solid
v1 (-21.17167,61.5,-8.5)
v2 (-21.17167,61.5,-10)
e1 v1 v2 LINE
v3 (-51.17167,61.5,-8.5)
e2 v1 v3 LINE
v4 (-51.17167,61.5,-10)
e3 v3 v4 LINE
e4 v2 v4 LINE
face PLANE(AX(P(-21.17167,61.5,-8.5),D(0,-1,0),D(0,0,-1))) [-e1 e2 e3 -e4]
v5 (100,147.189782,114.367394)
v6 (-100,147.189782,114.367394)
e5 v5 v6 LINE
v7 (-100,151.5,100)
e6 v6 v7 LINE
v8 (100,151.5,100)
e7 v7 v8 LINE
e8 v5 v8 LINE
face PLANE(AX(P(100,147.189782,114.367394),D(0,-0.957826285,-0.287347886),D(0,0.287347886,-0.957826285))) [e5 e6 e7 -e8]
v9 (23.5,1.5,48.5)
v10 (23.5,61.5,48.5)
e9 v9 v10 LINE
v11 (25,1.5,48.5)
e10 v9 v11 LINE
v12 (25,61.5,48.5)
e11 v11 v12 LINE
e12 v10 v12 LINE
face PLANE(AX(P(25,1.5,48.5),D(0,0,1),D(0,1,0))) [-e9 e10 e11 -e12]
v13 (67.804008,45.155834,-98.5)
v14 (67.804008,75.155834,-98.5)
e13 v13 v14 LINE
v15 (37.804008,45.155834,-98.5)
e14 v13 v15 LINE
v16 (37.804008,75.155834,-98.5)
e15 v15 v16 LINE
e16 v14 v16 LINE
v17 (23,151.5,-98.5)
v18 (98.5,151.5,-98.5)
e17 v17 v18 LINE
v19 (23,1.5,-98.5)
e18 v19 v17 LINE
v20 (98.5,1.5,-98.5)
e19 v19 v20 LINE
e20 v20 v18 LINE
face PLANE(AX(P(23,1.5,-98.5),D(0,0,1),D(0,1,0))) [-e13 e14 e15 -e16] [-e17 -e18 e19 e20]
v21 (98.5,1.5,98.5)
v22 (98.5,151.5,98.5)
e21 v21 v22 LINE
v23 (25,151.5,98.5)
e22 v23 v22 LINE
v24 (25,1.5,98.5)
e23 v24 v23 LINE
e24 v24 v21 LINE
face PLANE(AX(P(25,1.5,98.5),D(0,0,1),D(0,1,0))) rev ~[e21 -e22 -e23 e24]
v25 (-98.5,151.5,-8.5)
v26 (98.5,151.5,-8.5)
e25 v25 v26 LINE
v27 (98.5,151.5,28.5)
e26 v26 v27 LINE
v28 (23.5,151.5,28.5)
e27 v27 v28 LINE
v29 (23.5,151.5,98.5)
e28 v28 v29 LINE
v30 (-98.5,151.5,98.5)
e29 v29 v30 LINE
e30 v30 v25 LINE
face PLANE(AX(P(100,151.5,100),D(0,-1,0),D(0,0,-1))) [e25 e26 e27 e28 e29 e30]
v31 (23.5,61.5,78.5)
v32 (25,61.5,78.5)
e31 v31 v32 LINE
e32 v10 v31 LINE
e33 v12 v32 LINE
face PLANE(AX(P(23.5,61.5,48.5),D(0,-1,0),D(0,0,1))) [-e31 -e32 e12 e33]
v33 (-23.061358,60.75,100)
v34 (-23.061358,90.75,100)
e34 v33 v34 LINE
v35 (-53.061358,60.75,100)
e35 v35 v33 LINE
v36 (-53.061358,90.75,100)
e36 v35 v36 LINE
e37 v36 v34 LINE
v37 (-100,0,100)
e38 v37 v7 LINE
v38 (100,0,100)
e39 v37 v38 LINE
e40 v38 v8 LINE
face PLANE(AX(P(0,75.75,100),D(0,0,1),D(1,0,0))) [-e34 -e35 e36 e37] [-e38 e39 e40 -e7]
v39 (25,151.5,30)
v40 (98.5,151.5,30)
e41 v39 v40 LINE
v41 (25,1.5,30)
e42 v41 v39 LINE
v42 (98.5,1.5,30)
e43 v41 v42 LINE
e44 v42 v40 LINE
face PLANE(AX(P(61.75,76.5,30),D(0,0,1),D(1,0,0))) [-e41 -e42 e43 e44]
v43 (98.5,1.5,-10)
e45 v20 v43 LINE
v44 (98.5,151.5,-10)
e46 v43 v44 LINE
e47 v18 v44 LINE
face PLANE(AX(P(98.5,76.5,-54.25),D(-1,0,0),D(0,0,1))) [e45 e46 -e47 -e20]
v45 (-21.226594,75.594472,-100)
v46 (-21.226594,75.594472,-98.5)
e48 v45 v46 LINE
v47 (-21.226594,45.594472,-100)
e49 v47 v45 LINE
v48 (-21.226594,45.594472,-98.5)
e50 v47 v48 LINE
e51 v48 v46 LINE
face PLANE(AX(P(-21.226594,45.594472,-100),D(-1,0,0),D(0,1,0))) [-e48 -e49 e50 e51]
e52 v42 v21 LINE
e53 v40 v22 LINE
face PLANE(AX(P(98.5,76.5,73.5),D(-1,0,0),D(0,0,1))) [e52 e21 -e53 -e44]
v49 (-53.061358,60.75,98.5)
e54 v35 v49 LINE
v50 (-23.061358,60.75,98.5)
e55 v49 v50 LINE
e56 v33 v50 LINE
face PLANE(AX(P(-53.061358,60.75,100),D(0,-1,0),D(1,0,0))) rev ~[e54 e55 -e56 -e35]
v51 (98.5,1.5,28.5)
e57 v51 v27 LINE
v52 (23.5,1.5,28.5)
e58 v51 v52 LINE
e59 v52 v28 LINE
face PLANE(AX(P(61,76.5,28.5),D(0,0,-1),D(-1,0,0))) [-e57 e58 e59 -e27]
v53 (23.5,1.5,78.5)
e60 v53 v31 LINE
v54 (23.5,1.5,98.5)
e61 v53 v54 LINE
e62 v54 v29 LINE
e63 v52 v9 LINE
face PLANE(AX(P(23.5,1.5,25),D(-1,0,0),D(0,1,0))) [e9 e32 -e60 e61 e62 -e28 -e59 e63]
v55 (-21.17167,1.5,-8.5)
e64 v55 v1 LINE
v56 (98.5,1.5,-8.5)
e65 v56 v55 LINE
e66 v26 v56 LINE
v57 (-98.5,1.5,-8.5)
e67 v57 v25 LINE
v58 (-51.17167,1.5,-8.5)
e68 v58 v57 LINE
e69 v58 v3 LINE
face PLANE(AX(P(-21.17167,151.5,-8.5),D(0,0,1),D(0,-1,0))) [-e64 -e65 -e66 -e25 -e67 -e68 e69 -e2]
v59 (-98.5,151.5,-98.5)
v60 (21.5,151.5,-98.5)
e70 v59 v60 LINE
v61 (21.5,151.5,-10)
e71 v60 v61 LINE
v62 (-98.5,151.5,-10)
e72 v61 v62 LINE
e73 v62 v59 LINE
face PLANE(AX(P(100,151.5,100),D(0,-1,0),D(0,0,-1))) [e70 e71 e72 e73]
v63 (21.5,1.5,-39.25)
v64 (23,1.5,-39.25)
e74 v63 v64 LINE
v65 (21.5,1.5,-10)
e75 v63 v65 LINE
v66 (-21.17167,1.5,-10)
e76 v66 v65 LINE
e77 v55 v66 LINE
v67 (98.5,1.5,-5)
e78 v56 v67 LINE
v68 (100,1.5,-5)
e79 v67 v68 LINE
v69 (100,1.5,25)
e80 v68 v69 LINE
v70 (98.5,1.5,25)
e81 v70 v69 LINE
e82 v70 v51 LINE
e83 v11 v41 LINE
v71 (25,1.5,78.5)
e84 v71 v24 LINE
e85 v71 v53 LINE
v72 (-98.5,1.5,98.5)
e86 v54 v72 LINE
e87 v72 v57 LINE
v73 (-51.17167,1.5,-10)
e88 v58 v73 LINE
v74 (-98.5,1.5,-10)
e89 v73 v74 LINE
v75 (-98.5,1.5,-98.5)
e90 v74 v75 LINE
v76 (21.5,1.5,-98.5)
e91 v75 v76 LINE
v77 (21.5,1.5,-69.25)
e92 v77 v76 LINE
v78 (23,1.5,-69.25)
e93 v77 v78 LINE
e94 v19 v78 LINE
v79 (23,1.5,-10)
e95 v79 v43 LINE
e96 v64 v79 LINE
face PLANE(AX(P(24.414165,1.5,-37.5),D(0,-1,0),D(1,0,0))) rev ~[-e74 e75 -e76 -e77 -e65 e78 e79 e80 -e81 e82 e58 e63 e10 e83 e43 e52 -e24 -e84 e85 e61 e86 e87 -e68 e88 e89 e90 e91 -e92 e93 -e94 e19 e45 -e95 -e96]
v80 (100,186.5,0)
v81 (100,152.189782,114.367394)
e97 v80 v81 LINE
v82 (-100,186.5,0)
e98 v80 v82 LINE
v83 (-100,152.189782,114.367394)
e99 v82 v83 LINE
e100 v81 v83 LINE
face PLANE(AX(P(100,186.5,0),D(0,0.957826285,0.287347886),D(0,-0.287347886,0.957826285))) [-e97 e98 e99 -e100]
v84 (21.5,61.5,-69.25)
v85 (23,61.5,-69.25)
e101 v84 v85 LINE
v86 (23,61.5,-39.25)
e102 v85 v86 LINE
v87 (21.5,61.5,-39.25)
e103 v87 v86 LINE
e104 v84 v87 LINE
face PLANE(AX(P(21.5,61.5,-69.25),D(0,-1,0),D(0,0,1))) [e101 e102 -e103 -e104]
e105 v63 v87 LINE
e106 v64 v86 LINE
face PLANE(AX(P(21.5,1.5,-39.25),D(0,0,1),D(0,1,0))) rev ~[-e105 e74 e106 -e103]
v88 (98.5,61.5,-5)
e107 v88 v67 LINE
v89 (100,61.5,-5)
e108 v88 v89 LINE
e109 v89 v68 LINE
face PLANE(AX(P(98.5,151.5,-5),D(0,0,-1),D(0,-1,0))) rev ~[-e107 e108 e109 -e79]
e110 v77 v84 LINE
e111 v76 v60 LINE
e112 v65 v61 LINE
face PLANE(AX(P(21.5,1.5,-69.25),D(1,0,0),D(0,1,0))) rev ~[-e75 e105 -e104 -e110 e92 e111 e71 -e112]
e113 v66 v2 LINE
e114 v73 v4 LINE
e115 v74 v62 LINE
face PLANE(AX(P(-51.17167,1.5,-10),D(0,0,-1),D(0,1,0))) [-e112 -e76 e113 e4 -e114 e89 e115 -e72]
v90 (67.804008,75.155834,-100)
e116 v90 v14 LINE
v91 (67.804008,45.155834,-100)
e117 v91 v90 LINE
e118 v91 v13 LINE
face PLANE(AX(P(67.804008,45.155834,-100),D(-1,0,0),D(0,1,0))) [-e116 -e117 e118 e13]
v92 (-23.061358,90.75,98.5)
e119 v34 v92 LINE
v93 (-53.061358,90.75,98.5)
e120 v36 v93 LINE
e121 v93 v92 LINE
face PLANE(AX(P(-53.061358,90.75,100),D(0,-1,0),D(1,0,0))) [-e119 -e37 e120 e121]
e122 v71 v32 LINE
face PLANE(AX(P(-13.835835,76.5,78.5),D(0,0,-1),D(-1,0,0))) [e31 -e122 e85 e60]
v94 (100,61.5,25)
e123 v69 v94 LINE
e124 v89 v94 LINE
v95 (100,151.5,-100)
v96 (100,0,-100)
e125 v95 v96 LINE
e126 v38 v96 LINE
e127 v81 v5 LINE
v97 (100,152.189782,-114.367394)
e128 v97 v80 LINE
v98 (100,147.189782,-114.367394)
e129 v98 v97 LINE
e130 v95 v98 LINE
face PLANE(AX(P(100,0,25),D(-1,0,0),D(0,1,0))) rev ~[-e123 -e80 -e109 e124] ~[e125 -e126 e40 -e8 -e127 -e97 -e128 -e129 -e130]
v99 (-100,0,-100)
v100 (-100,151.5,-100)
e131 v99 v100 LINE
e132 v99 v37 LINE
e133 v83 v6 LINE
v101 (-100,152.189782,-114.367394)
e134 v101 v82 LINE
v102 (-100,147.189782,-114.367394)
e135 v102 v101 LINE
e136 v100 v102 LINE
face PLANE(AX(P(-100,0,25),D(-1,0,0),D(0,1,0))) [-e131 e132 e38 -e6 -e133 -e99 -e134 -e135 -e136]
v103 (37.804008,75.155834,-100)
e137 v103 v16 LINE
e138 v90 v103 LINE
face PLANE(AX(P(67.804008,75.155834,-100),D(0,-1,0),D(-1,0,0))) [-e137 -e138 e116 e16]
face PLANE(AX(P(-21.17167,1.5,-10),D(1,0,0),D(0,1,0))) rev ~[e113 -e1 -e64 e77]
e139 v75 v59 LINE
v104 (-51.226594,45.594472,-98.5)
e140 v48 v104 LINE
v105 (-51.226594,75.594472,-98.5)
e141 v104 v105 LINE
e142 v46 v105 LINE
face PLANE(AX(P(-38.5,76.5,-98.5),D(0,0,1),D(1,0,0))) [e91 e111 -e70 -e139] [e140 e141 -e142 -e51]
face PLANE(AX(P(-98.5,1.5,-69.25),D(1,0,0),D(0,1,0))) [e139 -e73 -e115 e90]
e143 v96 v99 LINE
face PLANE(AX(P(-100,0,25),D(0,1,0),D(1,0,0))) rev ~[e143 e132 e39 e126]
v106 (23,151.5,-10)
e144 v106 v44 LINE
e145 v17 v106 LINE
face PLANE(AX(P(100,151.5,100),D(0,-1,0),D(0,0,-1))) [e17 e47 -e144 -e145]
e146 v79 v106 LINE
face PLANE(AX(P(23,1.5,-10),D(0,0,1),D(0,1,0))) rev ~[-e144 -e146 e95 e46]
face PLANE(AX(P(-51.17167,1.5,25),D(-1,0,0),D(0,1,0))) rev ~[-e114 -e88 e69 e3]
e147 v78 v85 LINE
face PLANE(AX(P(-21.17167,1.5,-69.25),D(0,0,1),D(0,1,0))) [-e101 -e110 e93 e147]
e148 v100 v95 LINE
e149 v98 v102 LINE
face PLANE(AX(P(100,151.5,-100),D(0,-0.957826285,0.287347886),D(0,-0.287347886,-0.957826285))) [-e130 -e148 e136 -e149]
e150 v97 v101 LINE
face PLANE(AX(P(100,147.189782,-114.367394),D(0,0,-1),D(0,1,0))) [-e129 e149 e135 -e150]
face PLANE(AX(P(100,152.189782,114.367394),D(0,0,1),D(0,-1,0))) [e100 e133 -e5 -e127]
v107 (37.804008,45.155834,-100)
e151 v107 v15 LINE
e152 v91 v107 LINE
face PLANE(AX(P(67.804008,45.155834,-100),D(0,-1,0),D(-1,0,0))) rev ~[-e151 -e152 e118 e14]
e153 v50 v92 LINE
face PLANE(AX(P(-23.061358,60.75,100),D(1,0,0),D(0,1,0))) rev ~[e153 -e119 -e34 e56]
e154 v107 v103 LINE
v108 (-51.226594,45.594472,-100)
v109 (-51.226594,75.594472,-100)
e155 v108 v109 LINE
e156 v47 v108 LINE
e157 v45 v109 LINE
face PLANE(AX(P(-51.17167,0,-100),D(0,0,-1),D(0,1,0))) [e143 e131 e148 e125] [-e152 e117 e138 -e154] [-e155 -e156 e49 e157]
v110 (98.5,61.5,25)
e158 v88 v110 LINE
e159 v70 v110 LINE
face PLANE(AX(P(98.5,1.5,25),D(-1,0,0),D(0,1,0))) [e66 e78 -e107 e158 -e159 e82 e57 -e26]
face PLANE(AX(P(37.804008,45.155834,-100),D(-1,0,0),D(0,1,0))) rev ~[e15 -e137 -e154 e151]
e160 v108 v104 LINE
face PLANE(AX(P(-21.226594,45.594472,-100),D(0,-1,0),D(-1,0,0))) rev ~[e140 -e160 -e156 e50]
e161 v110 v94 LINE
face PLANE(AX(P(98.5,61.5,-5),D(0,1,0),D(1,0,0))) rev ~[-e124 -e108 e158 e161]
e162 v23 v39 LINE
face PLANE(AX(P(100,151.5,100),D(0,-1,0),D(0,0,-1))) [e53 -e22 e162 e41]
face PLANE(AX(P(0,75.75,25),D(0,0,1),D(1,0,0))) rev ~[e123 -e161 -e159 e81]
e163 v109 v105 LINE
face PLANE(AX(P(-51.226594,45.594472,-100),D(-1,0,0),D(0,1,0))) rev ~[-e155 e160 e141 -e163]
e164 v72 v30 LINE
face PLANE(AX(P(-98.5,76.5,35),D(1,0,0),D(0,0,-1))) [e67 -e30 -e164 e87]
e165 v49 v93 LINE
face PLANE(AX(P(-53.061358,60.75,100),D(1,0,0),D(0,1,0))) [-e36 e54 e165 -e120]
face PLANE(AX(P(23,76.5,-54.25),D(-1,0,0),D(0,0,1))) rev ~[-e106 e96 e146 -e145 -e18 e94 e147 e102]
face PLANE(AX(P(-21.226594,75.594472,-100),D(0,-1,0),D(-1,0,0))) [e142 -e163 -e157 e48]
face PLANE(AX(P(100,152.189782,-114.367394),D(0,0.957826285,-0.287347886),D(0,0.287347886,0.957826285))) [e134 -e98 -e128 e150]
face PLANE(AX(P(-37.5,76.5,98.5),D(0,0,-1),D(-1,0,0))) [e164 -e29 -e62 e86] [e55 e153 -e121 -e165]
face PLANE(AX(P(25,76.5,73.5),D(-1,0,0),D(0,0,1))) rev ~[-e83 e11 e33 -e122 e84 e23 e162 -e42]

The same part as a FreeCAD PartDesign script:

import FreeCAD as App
import Part
import Sketcher
Q = App.Units.Quantity

doc = App.newDocument("Part")
body = doc.addObject("PartDesign::Body", "Body")

sketch1 = body.newObject("Sketcher::SketchObject", "Sketch")
sketch1.AttachmentSupport = (doc.getObject("YZ_Plane"), [""])
sketch1.MapMode = "FlatFace"
sketch1.AttachmentOffset = App.Placement(App.Vector(0, 0, 98.5), App.Rotation())
sketch1.addGeometry(Part.LineSegment(App.Vector(151.5, -5, 0), App.Vector(151.5, -8.5, 0)), False)
sketch1.addGeometry(Part.LineSegment(App.Vector(151.5, -8.5, 0), App.Vector(1.5, -8.5, 0)), False)
sketch1.addGeometry(Part.LineSegment(App.Vector(1.5, -8.5, 0), App.Vector(1.5, -5, 0)), False)
sketch1.addGeometry(Part.LineSegment(App.Vector(1.5, -5, 0), App.Vector(151.5, -5, 0)), False)
sketch1.addConstraint(Sketcher.Constraint("Coincident", 0, 2, 1, 1))
sketch1.addConstraint(Sketcher.Constraint("Coincident", 1, 2, 2, 1))
sketch1.addConstraint(Sketcher.Constraint("Coincident", 2, 2, 3, 1))
sketch1.addConstraint(Sketcher.Constraint("Coincident", 3, 2, 0, 1))
sketch1.addConstraint(Sketcher.Constraint("Vertical", 0))
sketch1.addConstraint(Sketcher.Constraint("Horizontal", 1))
sketch1.addConstraint(Sketcher.Constraint("Vertical", 2))
sketch1.addConstraint(Sketcher.Constraint("Horizontal", 3))
sketch1.addConstraint(Sketcher.Constraint("DistanceX", 1, 2, 1, 1, Q("150 mm")))
sketch1.addConstraint(Sketcher.Constraint("DistanceY", 0, 2, 0, 1, Q("3.5 mm")))
sketch1.addConstraint(Sketcher.Constraint("DistanceY", 2, 2, -1, 1, Q("5 mm")))
sketch1.addConstraint(Sketcher.Constraint("DistanceX", -1, 1, 0, 2, Q("151.5 mm")))
pad1 = body.newObject("PartDesign::Pad", "Pad")
pad1.Profile = sketch1
pad1.Length = 1.5

sketch2 = body.newObject("Sketcher::SketchObject", "Sketch001")
sketch2.AttachmentSupport = (doc.getObject("XY_Plane"), [""])
sketch2.MapMode = "FlatFace"
sketch2.AttachmentOffset = App.Placement(App.Vector(0, 0, -8.5), App.Rotation())
sketch2.addGeometry(Part.LineSegment(App.Vector(100, 152, 0), App.Vector(100, 2, 0)), False)
sketch2.addGeometry(Part.LineSegment(App.Vector(100, 2, 0), App.Vector(-21, 2, 0)), False)
sketch2.addGeometry(Part.LineSegment(App.Vector(-21, 2, 0), App.Vector(-21, 152, 0)), False)
sketch2.addGeometry(Part.LineSegment(App.Vector(-21, 152, 0), App.Vector(100, 152, 0)), False)
sketch2.addConstraint(Sketcher.Constraint("Coincident", 0, 2, 1, 1))
sketch2.addConstraint(Sketcher.Constraint("Coincident", 1, 2, 2, 1))
sketch2.addConstraint(Sketcher.Constraint("Coincident", 2, 2, 3, 1))
sketch2.addConstraint(Sketcher.Constraint("Coincident", 3, 2, 0, 1))
sketch2.addConstraint(Sketcher.Constraint("Vertical", 0))
sketch2.addConstraint(Sketcher.Constraint("Horizontal", 1))
sketch2.addConstraint(Sketcher.Constraint("Vertical", 2))
sketch2.addConstraint(Sketcher.Constraint("Horizontal", 3))
sketch2.addConstraint(Sketcher.Constraint("DistanceY", 0, 2, 0, 1, Q("150 mm")))
sketch2.addConstraint(Sketcher.Constraint("DistanceX", -1, 1, 0, 2, Q("100 mm")))
sketch2.addConstraint(Sketcher.Constraint("DistanceY", -1, 1, 0, 2, Q("1.5 mm")))
sketch2.addConstraint(Sketcher.Constraint("DistanceX", 1, 2, 1, 1, Q("121.17167 mm")))
pad2 = body.newObject("PartDesign::Pad", "Pad001")
pad2.Profile = sketch2
pad2.Length = 91.5
pad2.Reversed = True

sketch3 = body.newObject("Sketcher::SketchObject", "Sketch002")
sketch3.AttachmentSupport = (doc.getObject("XY_Plane"), [""])
sketch3.MapMode = "FlatFace"
sketch3.AttachmentOffset = App.Placement(App.Vector(0, 0, -5), App.Rotation())
sketch3.addGeometry(Part.LineSegment(App.Vector(98.5, 151.5, 0), App.Vector(98.5, 61.5, 0)), False)
sketch3.addGeometry(Part.LineSegment(App.Vector(98.5, 61.5, 0), App.Vector(100, 61.5, 0)), False)
sketch3.addGeometry(Part.LineSegment(App.Vector(100, 61.5, 0), App.Vector(100, 151.5, 0)), False)
sketch3.addGeometry(Part.LineSegment(App.Vector(100, 151.5, 0), App.Vector(98.5, 151.5, 0)), False)
sketch3.addConstraint(Sketcher.Constraint("Coincident", 0, 2, 1, 1))
sketch3.addConstraint(Sketcher.Constraint("Coincident", 1, 2, 2, 1))
sketch3.addConstraint(Sketcher.Constraint("Coincident", 2, 2, 3, 1))
sketch3.addConstraint(Sketcher.Constraint("Coincident", 3, 2, 0, 1))
sketch3.addConstraint(Sketcher.Constraint("Vertical", 0))
sketch3.addConstraint(Sketcher.Constraint("Horizontal", 1))
sketch3.addConstraint(Sketcher.Constraint("Vertical", 2))
sketch3.addConstraint(Sketcher.Constraint("Horizontal", 3))
sketch3.addConstraint(Sketcher.Constraint("DistanceY", 0, 2, 0, 1, Q("90 mm")))
sketch3.addConstraint(Sketcher.Constraint("DistanceX", 1, 1, 1, 2, Q("1.5 mm")))
sketch3.addConstraint(Sketcher.Constraint("DistanceX", -1, 1, 1, 2, Q("100 mm")))
sketch3.addConstraint(Sketcher.Constraint("DistanceY", -1, 1, 0, 2, Q("61.5 mm")))
pad3 = body.newObject("PartDesign::Pad", "Pad002")
pad3.Profile = sketch3
pad3.Length = 30

sketch4 = body.newObject("Sketcher::SketchObject", "Sketch003")
sketch4.AttachmentSupport = (doc.getObject("YZ_Plane"), [""])
sketch4.MapMode = "FlatFace"
sketch4.AttachmentOffset = App.Placement(App.Vector(0, 0, -21.17167), App.Rotation())
sketch4.addGeometry(Part.LineSegment(App.Vector(151.5, -100, 0), App.Vector(1.5, -100, 0)), False)
sketch4.addGeometry(Part.LineSegment(App.Vector(1.5, -100, 0), App.Vector(1.5, -10, 0)), False)
sketch4.addGeometry(Part.LineSegment(App.Vector(1.5, -10, 0), App.Vector(61.5, -10, 0)), False)
sketch4.addGeometry(Part.LineSegment(App.Vector(61.5, -10, 0), App.Vector(61.5, -8.5, 0)), False)
sketch4.addGeometry(Part.LineSegment(App.Vector(61.5, -8.5, 0), App.Vector(151.5, -8.5, 0)), False)
sketch4.addGeometry(Part.LineSegment(App.Vector(151.5, -8.5, 0), App.Vector(151.5, -100, 0)), False)
sketch4.addConstraint(Sketcher.Constraint("Coincident", 0, 2, 1, 1))
sketch4.addConstraint(Sketcher.Constraint("Coincident", 1, 2, 2, 1))
sketch4.addConstraint(Sketcher.Constraint("Coincident", 2, 2, 3, 1))
sketch4.addConstraint(Sketcher.Constraint("Coincident", 3, 2, 4, 1))
sketch4.addConstraint(Sketcher.Constraint("Coincident", 4, 2, 5, 1))
sketch4.addConstraint(Sketcher.Constraint("Coincident", 5, 2, 0, 1))
sketch4.addConstraint(Sketcher.Constraint("Horizontal", 0))
sketch4.addConstraint(Sketcher.Constraint("Vertical", 1))
sketch4.addConstraint(Sketcher.Constraint("Horizontal", 2))
sketch4.addConstraint(Sketcher.Constraint("Vertical", 3))
sketch4.addConstraint(Sketcher.Constraint("Horizontal", 4))
sketch4.addConstraint(Sketcher.Constraint("Vertical", 5))
sketch4.addConstraint(Sketcher.Constraint("Equal", 4, 1))
sketch4.addConstraint(Sketcher.Constraint("DistanceX", 0, 2, 0, 1, Q("150 mm")))
sketch4.addConstraint(Sketcher.Constraint("DistanceX", 2, 1, 2, 2, Q("60 mm")))
sketch4.addConstraint(Sketcher.Constraint("DistanceY", 3, 1, 3, 2, Q("1.5 mm")))
sketch4.addConstraint(Sketcher.Constraint("DistanceY", 0, 2, -1, 1, Q("100 mm")))
sketch4.addConstraint(Sketcher.Constraint("DistanceX", -1, 1, 0, 2, Q("1.5 mm")))
pad4 = body.newObject("PartDesign::Pad", "Pad003")
pad4.Profile = sketch4
pad4.Length = 30
pad4.Reversed = True

sketch5 = body.newObject("Sketcher::SketchObject", "Sketch004")
sketch5.AttachmentSupport = (doc.getObject("XZ_Plane"), [""])
sketch5.MapMode = "FlatFace"
sketch5.AttachmentOffset = App.Placement(App.Vector(0, 0, -1.5), App.Rotation())
sketch5.addGeometry(Part.LineSegment(App.Vector(-51, 25, 0), App.Vector(-51, -100, 0)), False)
sketch5.addGeometry(Part.LineSegment(App.Vector(-51, -100, 0), App.Vector(100, -100, 0)), False)
sketch5.addGeometry(Part.LineSegment(App.Vector(100, -100, 0), App.Vector(100, 25, 0)), False)
sketch5.addGeometry(Part.LineSegment(App.Vector(100, 25, 0), App.Vector(-51, 25, 0)), False)
sketch5.addConstraint(Sketcher.Constraint("Coincident", 0, 2, 1, 1))
sketch5.addConstraint(Sketcher.Constraint("Coincident", 1, 2, 2, 1))
sketch5.addConstraint(Sketcher.Constraint("Coincident", 2, 2, 3, 1))
sketch5.addConstraint(Sketcher.Constraint("Coincident", 3, 2, 0, 1))
sketch5.addConstraint(Sketcher.Constraint("Vertical", 0))
sketch5.addConstraint(Sketcher.Constraint("Horizontal", 1))
sketch5.addConstraint(Sketcher.Constraint("Vertical", 2))
sketch5.addConstraint(Sketcher.Constraint("Horizontal", 3))
sketch5.addConstraint(Sketcher.Constraint("DistanceY", 0, 2, 0, 1, Q("125 mm")))
sketch5.addConstraint(Sketcher.Constraint("DistanceY", 0, 2, -1, 1, Q("100 mm")))
sketch5.addConstraint(Sketcher.Constraint("DistanceX", -1, 1, 1, 2, Q("100 mm")))
sketch5.addConstraint(Sketcher.Constraint("DistanceX", 1, 1, 1, 2, Q("151.17167 mm")))
pad5 = body.newObject("PartDesign::Pad", "Pad004")
pad5.Profile = sketch5
pad5.Length = 1.5

sketch6 = body.newObject("Sketcher::SketchObject", "Sketch005")
sketch6.AttachmentSupport = (doc.getObject("YZ_Plane"), [""])
sketch6.MapMode = "FlatFace"
sketch6.AttachmentOffset = App.Placement(App.Vector(0, 0, -51.17167), App.Rotation())
sketch6.addGeometry(Part.LineSegment(App.Vector(152, -100, 0), App.Vector(0, -100, 0)), False)
sketch6.addGeometry(Part.LineSegment(App.Vector(0, -100, 0), App.Vector(0, 25, 0)), False)
sketch6.addGeometry(Part.LineSegment(App.Vector(0, 25, 0), App.Vector(152, 25, 0)), False)
sketch6.addGeometry(Part.LineSegment(App.Vector(152, 25, 0), App.Vector(152, -100, 0)), False)
sketch6.addConstraint(Sketcher.Constraint("Coincident", 0, 2, 1, 1))
sketch6.addConstraint(Sketcher.Constraint("Coincident", 1, 2, 2, 1))
sketch6.addConstraint(Sketcher.Constraint("Coincident", 2, 2, 3, 1))
sketch6.addConstraint(Sketcher.Constraint("Coincident", 3, 2, 0, 1))
sketch6.addConstraint(Sketcher.Constraint("Horizontal", 0))
sketch6.addConstraint(Sketcher.Constraint("Vertical", 1))
sketch6.addConstraint(Sketcher.Constraint("Horizontal", 2))
sketch6.addConstraint(Sketcher.Constraint("Vertical", 3))
sketch6.addConstraint(Sketcher.Constraint("PointOnObject", 0, 2, -2))
sketch6.addConstraint(Sketcher.Constraint("DistanceY", 1, 1, 1, 2, Q("125 mm")))
sketch6.addConstraint(Sketcher.Constraint("DistanceX", 0, 2, 0, 1, Q("151.5 mm")))
sketch6.addConstraint(Sketcher.Constraint("DistanceY", 0, 2, -1, 1, Q("100 mm")))
pad6 = body.newObject("PartDesign::Pad", "Pad005")
pad6.Profile = sketch6
pad6.Length = 48.82833
pad6.Reversed = True

sketch7 = body.newObject("Sketcher::SketchObject", "Sketch006")
sketch7.AttachmentSupport = (doc.getObject("XY_Plane"), [""])
sketch7.MapMode = "FlatFace"
sketch7.AttachmentOffset = App.Placement(App.Vector(0, 0, 25), App.Rotation())
sketch7.addGeometry(Part.LineSegment(App.Vector(-100, 152, 0), App.Vector(-100, 0, 0)), False)
sketch7.addGeometry(Part.LineSegment(App.Vector(-100, 0, 0), App.Vector(100, 0, 0)), False)
sketch7.addGeometry(Part.LineSegment(App.Vector(100, 0, 0), App.Vector(100, 152, 0)), False)
sketch7.addGeometry(Part.LineSegment(App.Vector(100, 152, 0), App.Vector(-100, 152, 0)), False)
sketch7.addConstraint(Sketcher.Constraint("Coincident", 0, 2, 1, 1))
sketch7.addConstraint(Sketcher.Constraint("Coincident", 1, 2, 2, 1))
sketch7.addConstraint(Sketcher.Constraint("Coincident", 2, 2, 3, 1))
sketch7.addConstraint(Sketcher.Constraint("Coincident", 3, 2, 0, 1))
sketch7.addConstraint(Sketcher.Constraint("Vertical", 0))
sketch7.addConstraint(Sketcher.Constraint("Horizontal", 1))
sketch7.addConstraint(Sketcher.Constraint("Vertical", 2))
sketch7.addConstraint(Sketcher.Constraint("Horizontal", 3))
sketch7.addConstraint(Sketcher.Constraint("Symmetric", 0, 2, 1, 2, -1, 1))
sketch7.addConstraint(Sketcher.Constraint("DistanceX", 1, 1, 1, 2, Q("200 mm")))
sketch7.addConstraint(Sketcher.Constraint("DistanceY", 0, 2, 0, 1, Q("151.5 mm")))
pad7 = body.newObject("PartDesign::Pad", "Pad006")
pad7.Profile = sketch7
pad7.Length = 75

sketch8 = body.newObject("Sketcher::SketchObject", "Sketch007")
sketch8.AttachmentSupport = (doc.getObject("XY_Plane"), [""])
sketch8.MapMode = "FlatFace"
sketch8.AttachmentOffset = App.Placement(App.Vector(0, 0, 25), App.Rotation())
sketch8.addGeometry(Part.LineSegment(App.Vector(24, 152, 0), App.Vector(24, 2, 0)), False)
sketch8.addGeometry(Part.LineSegment(App.Vector(24, 2, 0), App.Vector(-51, 2, 0)), False)
sketch8.addGeometry(Part.LineSegment(App.Vector(-51, 2, 0), App.Vector(-51, 152, 0)), False)
sketch8.addGeometry(Part.LineSegment(App.Vector(-51, 152, 0), App.Vector(24, 152, 0)), False)
sketch8.addConstraint(Sketcher.Constraint("Coincident", 0, 2, 1, 1))
sketch8.addConstraint(Sketcher.Constraint("Coincident", 1, 2, 2, 1))
sketch8.addConstraint(Sketcher.Constraint("Coincident", 2, 2, 3, 1))
sketch8.addConstraint(Sketcher.Constraint("Coincident", 3, 2, 0, 1))
sketch8.addConstraint(Sketcher.Constraint("Vertical", 0))
sketch8.addConstraint(Sketcher.Constraint("Horizontal", 1))
sketch8.addConstraint(Sketcher.Constraint("Vertical", 2))
sketch8.addConstraint(Sketcher.Constraint("Horizontal", 3))
sketch8.addConstraint(Sketcher.Constraint("DistanceY", 0, 2, 0, 1, Q("150 mm")))
sketch8.addConstraint(Sketcher.Constraint("DistanceX", -1, 1, 0, 2, Q("23.5 mm")))
sketch8.addConstraint(Sketcher.Constraint("DistanceY", -1, 1, 0, 2, Q("1.5 mm")))
sketch8.addConstraint(Sketcher.Constraint("DistanceX", 1, 2, 1, 1, Q("74.67167 mm")))
pocket1 = body.newObject("PartDesign::Pocket", "Pocket")
pocket1.Profile = sketch8
pocket1.Length = 53.5
pocket1.Reversed = True

sketch9 = body.newObject("Sketcher::SketchObject", "Sketch008")
sketch9.AttachmentSupport = (doc.getObject("XY_Plane"), [""])
sketch9.MapMode = "FlatFace"
sketch9.AttachmentOffset = App.Placement(App.Vector(0, 0, -10), App.Rotation())
sketch9.addGeometry(Part.LineSegment(App.Vector(-51, 152, 0), App.Vector(-51, 2, 0)), False)
sketch9.addGeometry(Part.LineSegment(App.Vector(-51, 2, 0), App.Vector(-21, 2, 0)), False)
sketch9.addGeometry(Part.LineSegment(App.Vector(-21, 2, 0), App.Vector(-21, 152, 0)), False)
sketch9.addGeometry(Part.LineSegment(App.Vector(-21, 152, 0), App.Vector(-51, 152, 0)), False)
sketch9.addConstraint(Sketcher.Constraint("Coincident", 0, 2, 1, 1))
sketch9.addConstraint(Sketcher.Constraint("Coincident", 1, 2, 2, 1))
sketch9.addConstraint(Sketcher.Constraint("Coincident", 2, 2, 3, 1))
sketch9.addConstraint(Sketcher.Constraint("Coincident", 3, 2, 0, 1))
sketch9.addConstraint(Sketcher.Constraint("Vertical", 0))
sketch9.addConstraint(Sketcher.Constraint("Horizontal", 1))
sketch9.addConstraint(Sketcher.Constraint("Vertical", 2))
sketch9.addConstraint(Sketcher.Constraint("Horizontal", 3))
sketch9.addConstraint(Sketcher.Constraint("DistanceX", 1, 1, 1, 2, Q("30 mm")))
sketch9.addConstraint(Sketcher.Constraint("DistanceY", 0, 2, 0, 1, Q("150 mm")))
sketch9.addConstraint(Sketcher.Constraint("DistanceY", -1, 1, 0, 2, Q("1.5 mm")))
sketch9.addConstraint(Sketcher.Constraint("DistanceX", 0, 2, -1, 1, Q("51.17167 mm")))
pocket2 = body.newObject("PartDesign::Pocket", "Pocket001")
pocket2.Profile = sketch9
pocket2.Length = 59.25

sketch10 = body.newObject("Sketcher::SketchObject", "Sketch009")
sketch10.AttachmentSupport = (doc.getObject("YZ_Plane"), [""])
sketch10.MapMode = "FlatFace"
sketch10.AttachmentOffset = App.Placement(App.Vector(0, 0, -21.17167), App.Rotation())
sketch10.addGeometry(Part.LineSegment(App.Vector(152, -69, 0), App.Vector(2, -69, 0)), False)
sketch10.addGeometry(Part.LineSegment(App.Vector(2, -69, 0), App.Vector(2, -10, 0)), False)
sketch10.addGeometry(Part.LineSegment(App.Vector(2, -10, 0), App.Vector(152, -10, 0)), False)
sketch10.addGeometry(Part.LineSegment(App.Vector(152, -10, 0), App.Vector(152, -69, 0)), False)
sketch10.addConstraint(Sketcher.Constraint("Coincident", 0, 2, 1, 1))
sketch10.addConstraint(Sketcher.Constraint("Coincident", 1, 2, 2, 1))
sketch10.addConstraint(Sketcher.Constraint("Coincident", 2, 2, 3, 1))
sketch10.addConstraint(Sketcher.Constraint("Coincident", 3, 2, 0, 1))
sketch10.addConstraint(Sketcher.Constraint("Horizontal", 0))
sketch10.addConstraint(Sketcher.Constraint("Vertical", 1))
sketch10.addConstraint(Sketcher.Constraint("Horizontal", 2))
sketch10.addConstraint(Sketcher.Constraint("Vertical", 3))
sketch10.addConstraint(Sketcher.Constraint("DistanceX", 0, 2, 0, 1, Q("150 mm")))
sketch10.addConstraint(Sketcher.Constraint("DistanceY", 1, 2, -1, 1, Q("10 mm")))
sketch10.addConstraint(Sketcher.Constraint("DistanceY", 1, 1, 1, 2, Q("59.25 mm")))
sketch10.addConstraint(Sketcher.Constraint("DistanceX", -1, 1, 0, 2, Q("1.5 mm")))
pocket3 = body.newObject("PartDesign::Pocket", "Pocket002")
pocket3.Profile = sketch10
pocket3.Length = 42.67167
pocket3.Reversed = True

sketch11 = body.newObject("Sketcher::SketchObject", "Sketch010")
sketch11.AttachmentSupport = (doc.getObject("YZ_Plane"), [""])
sketch11.MapMode = "FlatFace"
sketch11.AttachmentOffset = App.Placement(App.Vector(0, 0, 23.5), App.Rotation())
sketch11.addGeometry(Part.LineSegment(App.Vector(62, 48, 0), App.Vector(2, 48, 0)), False)
sketch11.addGeometry(Part.LineSegment(App.Vector(2, 48, 0), App.Vector(2, 78, 0)), False)
sketch11.addGeometry(Part.LineSegment(App.Vector(2, 78, 0), App.Vector(62, 78, 0)), False)
sketch11.addGeometry(Part.LineSegment(App.Vector(62, 78, 0), App.Vector(62, 48, 0)), False)
sketch11.addConstraint(Sketcher.Constraint("Coincident", 0, 2, 1, 1))
sketch11.addConstraint(Sketcher.Constraint("Coincident", 1, 2, 2, 1))
sketch11.addConstraint(Sketcher.Constraint("Coincident", 2, 2, 3, 1))
sketch11.addConstraint(Sketcher.Constraint("Coincident", 3, 2, 0, 1))
sketch11.addConstraint(Sketcher.Constraint("Horizontal", 0))
sketch11.addConstraint(Sketcher.Constraint("Vertical", 1))
sketch11.addConstraint(Sketcher.Constraint("Horizontal", 2))
sketch11.addConstraint(Sketcher.Constraint("Vertical", 3))
sketch11.addConstraint(Sketcher.Constraint("DistanceX", 0, 2, 0, 1, Q("60 mm")))
sketch11.addConstraint(Sketcher.Constraint("DistanceY", 1, 1, 1, 2, Q("30 mm")))
sketch11.addConstraint(Sketcher.Constraint("DistanceX", -1, 1, 0, 2, Q("1.5 mm")))
sketch11.addConstraint(Sketcher.Constraint("DistanceY", -1, 1, 0, 2, Q("48.5 mm")))
pocket4 = body.newObject("PartDesign::Pocket", "Pocket003")
pocket4.Profile = sketch11
pocket4.Length = 1.5
pocket4.Reversed = True

sketch12 = body.newObject("Sketcher::SketchObject", "Sketch011")
sketch12.AttachmentSupport = (doc.getObject("YZ_Plane"), [""])
sketch12.MapMode = "FlatFace"
sketch12.AttachmentOffset = App.Placement(App.Vector(0, 0, 21.5), App.Rotation())
sketch12.addGeometry(Part.LineSegment(App.Vector(62, -69, 0), App.Vector(2, -69, 0)), False)
sketch12.addGeometry(Part.LineSegment(App.Vector(2, -69, 0), App.Vector(2, -39, 0)), False)
sketch12.addGeometry(Part.LineSegment(App.Vector(2, -39, 0), App.Vector(62, -39, 0)), False)
sketch12.addGeometry(Part.LineSegment(App.Vector(62, -39, 0), App.Vector(62, -69, 0)), False)
sketch12.addConstraint(Sketcher.Constraint("Coincident", 0, 2, 1, 1))
sketch12.addConstraint(Sketcher.Constraint("Coincident", 1, 2, 2, 1))
sketch12.addConstraint(Sketcher.Constraint("Coincident", 2, 2, 3, 1))
sketch12.addConstraint(Sketcher.Constraint("Coincident", 3, 2, 0, 1))
sketch12.addConstraint(Sketcher.Constraint("Horizontal", 0))
sketch12.addConstraint(Sketcher.Constraint("Vertical", 1))
sketch12.addConstraint(Sketcher.Constraint("Horizontal", 2))
sketch12.addConstraint(Sketcher.Constraint("Vertical", 3))
sketch12.addConstraint(Sketcher.Constraint("DistanceX", 0, 2, 0, 1, Q("60 mm")))
sketch12.addConstraint(Sketcher.Constraint("DistanceY", 1, 1, 1, 2, Q("30 mm")))
sketch12.addConstraint(Sketcher.Constraint("DistanceX", -1, 1, 0, 2, Q("1.5 mm")))
sketch12.addConstraint(Sketcher.Constraint("DistanceY", 0, 2, -1, 1, Q("69.25 mm")))
pocket5 = body.newObject("PartDesign::Pocket", "Pocket004")
pocket5.Profile = sketch12
pocket5.Length = 1.5
pocket5.Reversed = True

sketch13 = body.newObject("Sketcher::SketchObject", "Sketch012")
sketch13.AttachmentSupport = (doc.getObject("YZ_Plane"), [""])
sketch13.MapMode = "FlatFace"
sketch13.AttachmentOffset = App.Placement(App.Vector(0, 0, -51.17167), App.Rotation())
sketch13.addGeometry(Part.LineSegment(App.Vector(152, 78, 0), App.Vector(2, 78, 0)), False)
sketch13.addGeometry(Part.LineSegment(App.Vector(2, 78, 0), App.Vector(2, -8, 0)), False)
sketch13.addGeometry(Part.LineSegment(App.Vector(2, -8, 0), App.Vector(152, -8, 0)), False)
sketch13.addGeometry(Part.LineSegment(App.Vector(152, -8, 0), App.Vector(152, 78, 0)), False)
sketch13.addConstraint(Sketcher.Constraint("Coincident", 0, 2, 1, 1))
sketch13.addConstraint(Sketcher.Constraint("Coincident", 1, 2, 2, 1))
sketch13.addConstraint(Sketcher.Constraint("Coincident", 2, 2, 3, 1))
sketch13.addConstraint(Sketcher.Constraint("Coincident", 3, 2, 0, 1))
sketch13.addConstraint(Sketcher.Constraint("Horizontal", 0))
sketch13.addConstraint(Sketcher.Constraint("Vertical", 1))
sketch13.addConstraint(Sketcher.Constraint("Horizontal", 2))
sketch13.addConstraint(Sketcher.Constraint("Vertical", 3))
sketch13.addConstraint(Sketcher.Constraint("DistanceX", 0, 2, 0, 1, Q("150 mm")))
sketch13.addConstraint(Sketcher.Constraint("DistanceY", 1, 2, 1, 1, Q("87 mm")))
sketch13.addConstraint(Sketcher.Constraint("DistanceX", -1, 1, 0, 2, Q("1.5 mm")))
sketch13.addConstraint(Sketcher.Constraint("DistanceY", -1, 1, 0, 2, Q("78.5 mm")))
pocket6 = body.newObject("PartDesign::Pocket", "Pocket005")
pocket6.Profile = sketch13
pocket6.Length = 47.32833

sketch14 = body.newObject("Sketcher::SketchObject", "Sketch013")
sketch14.AttachmentSupport = (doc.getObject("YZ_Plane"), [""])
sketch14.MapMode = "FlatFace"
sketch14.AttachmentOffset = App.Placement(App.Vector(0, 0, -51.17167), App.Rotation())
sketch14.addGeometry(Part.LineSegment(App.Vector(152, -10, 0), App.Vector(2, -10, 0)), False)
sketch14.addGeometry(Part.LineSegment(App.Vector(2, -10, 0), App.Vector(2, -69, 0)), False)
sketch14.addGeometry(Part.LineSegment(App.Vector(2, -69, 0), App.Vector(152, -69, 0)), False)
sketch14.addGeometry(Part.LineSegment(App.Vector(152, -69, 0), App.Vector(152, -10, 0)), False)
sketch14.addConstraint(Sketcher.Constraint("Coincident", 0, 2, 1, 1))
sketch14.addConstraint(Sketcher.Constraint("Coincident", 1, 2, 2, 1))
sketch14.addConstraint(Sketcher.Constraint("Coincident", 2, 2, 3, 1))
sketch14.addConstraint(Sketcher.Constraint("Coincident", 3, 2, 0, 1))
sketch14.addConstraint(Sketcher.Constraint("Horizontal", 0))
sketch14.addConstraint(Sketcher.Constraint("Vertical", 1))
sketch14.addConstraint(Sketcher.Constraint("Horizontal", 2))
sketch14.addConstraint(Sketcher.Constraint("Vertical", 3))
sketch14.addConstraint(Sketcher.Constraint("DistanceX", 0, 2, 0, 1, Q("150 mm")))
sketch14.addConstraint(Sketcher.Constraint("DistanceY", 0, 2, -1, 1, Q("10 mm")))
sketch14.addConstraint(Sketcher.Constraint("DistanceY", 1, 2, 1, 1, Q("59.25 mm")))
sketch14.addConstraint(Sketcher.Constraint("DistanceX", -1, 1, 0, 2, Q("1.5 mm")))
pocket7 = body.newObject("PartDesign::Pocket", "Pocket006")
pocket7.Profile = sketch14
pocket7.Length = 47.32833

sketch15 = body.newObject("Sketcher::SketchObject", "Sketch014")
sketch15.AttachmentSupport = (doc.getObject("XY_Plane"), [""])
sketch15.MapMode = "FlatFace"
sketch15.AttachmentOffset = App.Placement(App.Vector(0, 0, -69.25), App.Rotation())
sketch15.addGeometry(Part.LineSegment(App.Vector(-98, 152, 0), App.Vector(-98, 2, 0)), False)
sketch15.addGeometry(Part.LineSegment(App.Vector(-98, 2, 0), App.Vector(22, 2, 0)), False)
sketch15.addGeometry(Part.LineSegment(App.Vector(22, 2, 0), App.Vector(22, 152, 0)), False)
sketch15.addGeometry(Part.LineSegment(App.Vector(22, 152, 0), App.Vector(-98, 152, 0)), False)
sketch15.addConstraint(Sketcher.Constraint("Coincident", 0, 2, 1, 1))
sketch15.addConstraint(Sketcher.Constraint("Coincident", 1, 2, 2, 1))
sketch15.addConstraint(Sketcher.Constraint("Coincident", 2, 2, 3, 1))
sketch15.addConstraint(Sketcher.Constraint("Coincident", 3, 2, 0, 1))
sketch15.addConstraint(Sketcher.Constraint("Vertical", 0))
sketch15.addConstraint(Sketcher.Constraint("Horizontal", 1))
sketch15.addConstraint(Sketcher.Constraint("Vertical", 2))
sketch15.addConstraint(Sketcher.Constraint("Horizontal", 3))
sketch15.addConstraint(Sketcher.Constraint("DistanceX", 1, 1, 1, 2, Q("120 mm")))
sketch15.addConstraint(Sketcher.Constraint("DistanceY", 0, 2, 0, 1, Q("150 mm")))
sketch15.addConstraint(Sketcher.Constraint("DistanceX", 0, 2, -1, 1, Q("98.5 mm")))
sketch15.addConstraint(Sketcher.Constraint("DistanceY", -1, 1, 0, 2, Q("1.5 mm")))
pocket8 = body.newObject("PartDesign::Pocket", "Pocket007")
pocket8.Profile = sketch15
pocket8.Length = 29.25

sketch16 = body.newObject("Sketcher::SketchObject", "Sketch015")
sketch16.AttachmentSupport = (doc.getObject("YZ_Plane"), [""])
sketch16.MapMode = "FlatFace"
sketch16.AttachmentOffset = App.Placement(App.Vector(0, 0, 23), App.Rotation())
sketch16.addGeometry(Part.LineSegment(App.Vector(152, -98, 0), App.Vector(2, -98, 0)), False)
sketch16.addGeometry(Part.LineSegment(App.Vector(2, -98, 0), App.Vector(2, -10, 0)), False)
sketch16.addGeometry(Part.LineSegment(App.Vector(2, -10, 0), App.Vector(152, -10, 0)), False)
sketch16.addGeometry(Part.LineSegment(App.Vector(152, -10, 0), App.Vector(152, -98, 0)), False)
sketch16.addConstraint(Sketcher.Constraint("Coincident", 0, 2, 1, 1))
sketch16.addConstraint(Sketcher.Constraint("Coincident", 1, 2, 2, 1))
sketch16.addConstraint(Sketcher.Constraint("Coincident", 2, 2, 3, 1))
sketch16.addConstraint(Sketcher.Constraint("Coincident", 3, 2, 0, 1))
sketch16.addConstraint(Sketcher.Constraint("Horizontal", 0))
sketch16.addConstraint(Sketcher.Constraint("Vertical", 1))
sketch16.addConstraint(Sketcher.Constraint("Horizontal", 2))
sketch16.addConstraint(Sketcher.Constraint("Vertical", 3))
sketch16.addConstraint(Sketcher.Constraint("DistanceX", 0, 2, 0, 1, Q("150 mm")))
sketch16.addConstraint(Sketcher.Constraint("DistanceY", 1, 1, 1, 2, Q("88.5 mm")))
sketch16.addConstraint(Sketcher.Constraint("DistanceY", 1, 2, -1, 1, Q("10 mm")))
sketch16.addConstraint(Sketcher.Constraint("DistanceX", -1, 1, 0, 2, Q("1.5 mm")))
pocket9 = body.newObject("PartDesign::Pocket", "Pocket008")
pocket9.Profile = sketch16
pocket9.Length = 75.5
pocket9.Reversed = True

sketch17 = body.newObject("Sketcher::SketchObject", "Sketch016")
sketch17.AttachmentSupport = (doc.getObject("XY_Plane"), [""])
sketch17.MapMode = "FlatFace"
sketch17.AttachmentOffset = App.Placement(App.Vector(0, 0, 78.5), App.Rotation())
sketch17.addGeometry(Part.LineSegment(App.Vector(24, 152, 0), App.Vector(24, 2, 0)), False)
sketch17.addGeometry(Part.LineSegment(App.Vector(24, 2, 0), App.Vector(-98, 2, 0)), False)
sketch17.addGeometry(Part.LineSegment(App.Vector(-98, 2, 0), App.Vector(-98, 152, 0)), False)
sketch17.addGeometry(Part.LineSegment(App.Vector(-98, 152, 0), App.Vector(24, 152, 0)), False)
sketch17.addConstraint(Sketcher.Constraint("Coincident", 0, 2, 1, 1))
sketch17.addConstraint(Sketcher.Constraint("Coincident", 1, 2, 2, 1))
sketch17.addConstraint(Sketcher.Constraint("Coincident", 2, 2, 3, 1))
sketch17.addConstraint(Sketcher.Constraint("Coincident", 3, 2, 0, 1))
sketch17.addConstraint(Sketcher.Constraint("Vertical", 0))
sketch17.addConstraint(Sketcher.Constraint("Horizontal", 1))
sketch17.addConstraint(Sketcher.Constraint("Vertical", 2))
sketch17.addConstraint(Sketcher.Constraint("Horizontal", 3))
sketch17.addConstraint(Sketcher.Constraint("DistanceX", 1, 2, 1, 1, Q("122 mm")))
sketch17.addConstraint(Sketcher.Constraint("DistanceY", 0, 2, 0, 1, Q("150 mm")))
sketch17.addConstraint(Sketcher.Constraint("DistanceX", -1, 1, 0, 2, Q("23.5 mm")))
sketch17.addConstraint(Sketcher.Constraint("DistanceY", -1, 1, 0, 2, Q("1.5 mm")))
pocket10 = body.newObject("PartDesign::Pocket", "Pocket009")
pocket10.Profile = sketch17
pocket10.Length = 20
pocket10.Reversed = True

sketch18 = body.newObject("Sketcher::SketchObject", "Sketch017")
sketch18.AttachmentSupport = (doc.getObject("YZ_Plane"), [""])
sketch18.MapMode = "FlatFace"
sketch18.AttachmentOffset = App.Placement(App.Vector(0, 0, 25), App.Rotation())
sketch18.addGeometry(Part.LineSegment(App.Vector(152, 48, 0), App.Vector(2, 48, 0)), False)
sketch18.addGeometry(Part.LineSegment(App.Vector(2, 48, 0), App.Vector(2, 98, 0)), False)
sketch18.addGeometry(Part.LineSegment(App.Vector(2, 98, 0), App.Vector(152, 98, 0)), False)
sketch18.addGeometry(Part.LineSegment(App.Vector(152, 98, 0), App.Vector(152, 48, 0)), False)
sketch18.addConstraint(Sketcher.Constraint("Coincident", 0, 2, 1, 1))
sketch18.addConstraint(Sketcher.Constraint("Coincident", 1, 2, 2, 1))
sketch18.addConstraint(Sketcher.Constraint("Coincident", 2, 2, 3, 1))
sketch18.addConstraint(Sketcher.Constraint("Coincident", 3, 2, 0, 1))
sketch18.addConstraint(Sketcher.Constraint("Horizontal", 0))
sketch18.addConstraint(Sketcher.Constraint("Vertical", 1))
sketch18.addConstraint(Sketcher.Constraint("Horizontal", 2))
sketch18.addConstraint(Sketcher.Constraint("Vertical", 3))
sketch18.addConstraint(Sketcher.Constraint("DistanceX", 0, 2, 0, 1, Q("150 mm")))
sketch18.addConstraint(Sketcher.Constraint("DistanceY", 1, 1, 1, 2, Q("50 mm")))
sketch18.addConstraint(Sketcher.Constraint("DistanceX", -1, 1, 0, 2, Q("1.5 mm")))
sketch18.addConstraint(Sketcher.Constraint("DistanceY", -1, 1, 0, 2, Q("48.5 mm")))
pocket11 = body.newObject("PartDesign::Pocket", "Pocket010")
pocket11.Profile = sketch18
pocket11.Length = 73.5
pocket11.Reversed = True

sketch19 = body.newObject("Sketcher::SketchObject", "Sketch018")
sketch19.AttachmentSupport = (doc.getObject("XY_Plane"), [""])
sketch19.MapMode = "FlatFace"
sketch19.AttachmentOffset = App.Placement(App.Vector(0, 0, 48.5), App.Rotation())
sketch19.addGeometry(Part.LineSegment(App.Vector(25, 152, 0), App.Vector(25, 2, 0)), False)
sketch19.addGeometry(Part.LineSegment(App.Vector(25, 2, 0), App.Vector(98, 2, 0)), False)
sketch19.addGeometry(Part.LineSegment(App.Vector(98, 2, 0), App.Vector(98, 152, 0)), False)
sketch19.addGeometry(Part.LineSegment(App.Vector(98, 152, 0), App.Vector(25, 152, 0)), False)
sketch19.addConstraint(Sketcher.Constraint("Coincident", 0, 2, 1, 1))
sketch19.addConstraint(Sketcher.Constraint("Coincident", 1, 2, 2, 1))
sketch19.addConstraint(Sketcher.Constraint("Coincident", 2, 2, 3, 1))
sketch19.addConstraint(Sketcher.Constraint("Coincident", 3, 2, 0, 1))
sketch19.addConstraint(Sketcher.Constraint("Vertical", 0))
sketch19.addConstraint(Sketcher.Constraint("Horizontal", 1))
sketch19.addConstraint(Sketcher.Constraint("Vertical", 2))
sketch19.addConstraint(Sketcher.Constraint("Horizontal", 3))
sketch19.addConstraint(Sketcher.Constraint("DistanceY", 0, 2, 0, 1, Q("150 mm")))
sketch19.addConstraint(Sketcher.Constraint("DistanceX", 1, 1, 1, 2, Q("73.5 mm")))
sketch19.addConstraint(Sketcher.Constraint("DistanceX", -1, 1, 0, 2, Q("25 mm")))
sketch19.addConstraint(Sketcher.Constraint("DistanceY", -1, 1, 0, 2, Q("1.5 mm")))
pocket12 = body.newObject("PartDesign::Pocket", "Pocket011")
pocket12.Profile = sketch19
pocket12.Length = 18.5

sketch20 = body.newObject("Sketcher::SketchObject", "Sketch019")
sketch20.AttachmentSupport = (doc.getObject("XY_Plane"), [""])
sketch20.MapMode = "FlatFace"
sketch20.AttachmentOffset = App.Placement(App.Vector(0, 0, 25), App.Rotation())
sketch20.addGeometry(Part.LineSegment(App.Vector(98, 152, 0), App.Vector(98, 2, 0)), False)
sketch20.addGeometry(Part.LineSegment(App.Vector(98, 2, 0), App.Vector(24, 2, 0)), False)
sketch20.addGeometry(Part.LineSegment(App.Vector(24, 2, 0), App.Vector(24, 152, 0)), False)
sketch20.addGeometry(Part.LineSegment(App.Vector(24, 152, 0), App.Vector(98, 152, 0)), False)
sketch20.addConstraint(Sketcher.Constraint("Coincident", 0, 2, 1, 1))
sketch20.addConstraint(Sketcher.Constraint("Coincident", 1, 2, 2, 1))
sketch20.addConstraint(Sketcher.Constraint("Coincident", 2, 2, 3, 1))
sketch20.addConstraint(Sketcher.Constraint("Coincident", 3, 2, 0, 1))
sketch20.addConstraint(Sketcher.Constraint("Vertical", 0))
sketch20.addConstraint(Sketcher.Constraint("Horizontal", 1))
sketch20.addConstraint(Sketcher.Constraint("Vertical", 2))
sketch20.addConstraint(Sketcher.Constraint("Horizontal", 3))
sketch20.addConstraint(Sketcher.Constraint("DistanceX", 1, 2, 1, 1, Q("75 mm")))
sketch20.addConstraint(Sketcher.Constraint("DistanceY", 0, 2, 0, 1, Q("150 mm")))
sketch20.addConstraint(Sketcher.Constraint("DistanceX", -1, 1, 0, 2, Q("98.5 mm")))
sketch20.addConstraint(Sketcher.Constraint("DistanceY", -1, 1, 0, 2, Q("1.5 mm")))
pocket13 = body.newObject("PartDesign::Pocket", "Pocket012")
pocket13.Profile = sketch20
pocket13.Length = 3.5
pocket13.Reversed = True

sketch21 = body.newObject("Sketcher::SketchObject", "Sketch020")
sketch21.AttachmentSupport = (doc.getObject("XY_Plane"), [""])
sketch21.MapMode = "FlatFace"
sketch21.AttachmentOffset = App.Placement(App.Vector(0, 0, -100), App.Rotation())
sketch21.addGeometry(Part.LineSegment(App.Vector(68, 75, 0), App.Vector(68, 45, 0)), False)
sketch21.addGeometry(Part.LineSegment(App.Vector(68, 45, 0), App.Vector(38, 45, 0)), False)
sketch21.addGeometry(Part.LineSegment(App.Vector(38, 45, 0), App.Vector(38, 75, 0)), False)
sketch21.addGeometry(Part.LineSegment(App.Vector(38, 75, 0), App.Vector(68, 75, 0)), False)
sketch21.addConstraint(Sketcher.Constraint("Coincident", 0, 2, 1, 1))
sketch21.addConstraint(Sketcher.Constraint("Coincident", 1, 2, 2, 1))
sketch21.addConstraint(Sketcher.Constraint("Coincident", 2, 2, 3, 1))
sketch21.addConstraint(Sketcher.Constraint("Coincident", 3, 2, 0, 1))
sketch21.addConstraint(Sketcher.Constraint("Vertical", 0))
sketch21.addConstraint(Sketcher.Constraint("Horizontal", 1))
sketch21.addConstraint(Sketcher.Constraint("Vertical", 2))
sketch21.addConstraint(Sketcher.Constraint("Horizontal", 3))
sketch21.addConstraint(Sketcher.Constraint("Equal", 3, 0))
sketch21.addConstraint(Sketcher.Constraint("DistanceX", 1, 2, 1, 1, Q("30 mm")))
sketch21.addConstraint(Sketcher.Constraint("DistanceX", -1, 1, 0, 2, Q("67.804008 mm")))
sketch21.addConstraint(Sketcher.Constraint("DistanceY", -1, 1, 0, 2, Q("45.155834 mm")))
pocket14 = body.newObject("PartDesign::Pocket", "Pocket013")
pocket14.Profile = sketch21
pocket14.Type = "UpToFirst"
pocket14.Reversed = True

sketch22 = body.newObject("Sketcher::SketchObject", "Sketch021")
sketch22.AttachmentSupport = (doc.getObject("XY_Plane"), [""])
sketch22.MapMode = "FlatFace"
sketch22.AttachmentOffset = App.Placement(App.Vector(0, 0, -100), App.Rotation())
sketch22.addGeometry(Part.LineSegment(App.Vector(-21, 76, 0), App.Vector(-21, 46, 0)), False)
sketch22.addGeometry(Part.LineSegment(App.Vector(-21, 46, 0), App.Vector(-51, 46, 0)), False)
sketch22.addGeometry(Part.LineSegment(App.Vector(-51, 46, 0), App.Vector(-51, 76, 0)), False)
sketch22.addGeometry(Part.LineSegment(App.Vector(-51, 76, 0), App.Vector(-21, 76, 0)), False)
sketch22.addConstraint(Sketcher.Constraint("Coincident", 0, 2, 1, 1))
sketch22.addConstraint(Sketcher.Constraint("Coincident", 1, 2, 2, 1))
sketch22.addConstraint(Sketcher.Constraint("Coincident", 2, 2, 3, 1))
sketch22.addConstraint(Sketcher.Constraint("Coincident", 3, 2, 0, 1))
sketch22.addConstraint(Sketcher.Constraint("Vertical", 0))
sketch22.addConstraint(Sketcher.Constraint("Horizontal", 1))
sketch22.addConstraint(Sketcher.Constraint("Vertical", 2))
sketch22.addConstraint(Sketcher.Constraint("Horizontal", 3))
sketch22.addConstraint(Sketcher.Constraint("Equal", 3, 0))
sketch22.addConstraint(Sketcher.Constraint("DistanceX", 1, 2, 1, 1, Q("30 mm")))
sketch22.addConstraint(Sketcher.Constraint("DistanceX", 0, 2, -1, 1, Q("21.226594 mm")))
sketch22.addConstraint(Sketcher.Constraint("DistanceY", -1, 1, 0, 2, Q("45.594472 mm")))
pocket15 = body.newObject("PartDesign::Pocket", "Pocket014")
pocket15.Profile = sketch22
pocket15.Type = "UpToFirst"
pocket15.Reversed = True

sketch23 = body.newObject("Sketcher::SketchObject", "Sketch022")
sketch23.AttachmentSupport = (doc.getObject("XY_Plane"), [""])
sketch23.MapMode = "FlatFace"
sketch23.AttachmentOffset = App.Placement(App.Vector(0, 0, 100), App.Rotation())
sketch23.addGeometry(Part.LineSegment(App.Vector(-53, 91, 0), App.Vector(-53, 61, 0)), False)
sketch23.addGeometry(Part.LineSegment(App.Vector(-53, 61, 0), App.Vector(-23, 61, 0)), False)
sketch23.addGeometry(Part.LineSegment(App.Vector(-23, 61, 0), App.Vector(-23, 91, 0)), False)
sketch23.addGeometry(Part.LineSegment(App.Vector(-23, 91, 0), App.Vector(-53, 91, 0)), False)
sketch23.addConstraint(Sketcher.Constraint("Coincident", 0, 2, 1, 1))
sketch23.addConstraint(Sketcher.Constraint("Coincident", 1, 2, 2, 1))
sketch23.addConstraint(Sketcher.Constraint("Coincident", 2, 2, 3, 1))
sketch23.addConstraint(Sketcher.Constraint("Coincident", 3, 2, 0, 1))
sketch23.addConstraint(Sketcher.Constraint("Vertical", 0))
sketch23.addConstraint(Sketcher.Constraint("Horizontal", 1))
sketch23.addConstraint(Sketcher.Constraint("Vertical", 2))
sketch23.addConstraint(Sketcher.Constraint("Horizontal", 3))
sketch23.addConstraint(Sketcher.Constraint("Equal", 3, 0))
sketch23.addConstraint(Sketcher.Constraint("DistanceX", 1, 1, 1, 2, Q("30 mm")))
sketch23.addConstraint(Sketcher.Constraint("DistanceY", -1, 1, 0, 2, Q("60.75 mm")))
sketch23.addConstraint(Sketcher.Constraint("DistanceX", 0, 2, -1, 1, Q("53.061358 mm")))
pocket16 = body.newObject("PartDesign::Pocket", "Pocket015")
pocket16.Profile = sketch23
pocket16.Type = "UpToFirst"
body2 = doc.addObject("PartDesign::Body", "Body001")

sketch24 = body2.newObject("Sketcher::SketchObject", "Sketch023")
sketch24.AttachmentSupport = (doc.getObject("YZ_Plane001"), [""])
sketch24.MapMode = "FlatFace"
sketch24.AttachmentOffset = App.Placement(App.Vector(0, 0, 100), App.Rotation())
sketch24.addGeometry(Part.LineSegment(App.Vector(152, 100, 0), App.Vector(182, 0, 0)), False)
sketch24.addGeometry(Part.LineSegment(App.Vector(182, 0, 0), App.Vector(152, -100, 0)), False)
sketch24.addGeometry(Part.LineSegment(App.Vector(152, -100, 0), App.Vector(147, -114, 0)), False)
sketch24.addGeometry(Part.LineSegment(App.Vector(147, -114, 0), App.Vector(152, -114, 0)), False)
sketch24.addGeometry(Part.LineSegment(App.Vector(152, -114, 0), App.Vector(186, 0, 0)), False)
sketch24.addGeometry(Part.LineSegment(App.Vector(186, 0, 0), App.Vector(152, 114, 0)), False)
sketch24.addGeometry(Part.LineSegment(App.Vector(152, 114, 0), App.Vector(147, 114, 0)), False)
sketch24.addGeometry(Part.LineSegment(App.Vector(147, 114, 0), App.Vector(152, 100, 0)), False)
sketch24.addConstraint(Sketcher.Constraint("Coincident", 0, 2, 1, 1))
sketch24.addConstraint(Sketcher.Constraint("Coincident", 1, 2, 2, 1))
sketch24.addConstraint(Sketcher.Constraint("Coincident", 2, 2, 3, 1))
sketch24.addConstraint(Sketcher.Constraint("Coincident", 3, 2, 4, 1))
sketch24.addConstraint(Sketcher.Constraint("Coincident", 4, 2, 5, 1))
sketch24.addConstraint(Sketcher.Constraint("Coincident", 5, 2, 6, 1))
sketch24.addConstraint(Sketcher.Constraint("Coincident", 6, 2, 7, 1))
sketch24.addConstraint(Sketcher.Constraint("Coincident", 7, 2, 0, 1))
sketch24.addConstraint(Sketcher.Constraint("Horizontal", 3))
sketch24.addConstraint(Sketcher.Constraint("Horizontal", 6))
sketch24.addConstraint(Sketcher.Constraint("Symmetric", 3, 2, 5, 2, -1))
sketch24.addConstraint(Sketcher.Constraint("Symmetric", 1, 2, 7, 2, -1))
sketch24.addConstraint(Sketcher.Constraint("PointOnObject", 0, 2, -1))
sketch24.addConstraint(Sketcher.Constraint("PointOnObject", 4, 2, -1))
sketch24.addConstraint(Sketcher.Constraint("Parallel", 1, 2))
sketch24.addConstraint(Sketcher.Constraint("Parallel", 2, 4))
sketch24.addConstraint(Sketcher.Constraint("Parallel", 5, 7))
sketch24.addConstraint(Sketcher.Constraint("DistanceX", 3, 1, 3, 2, Q("5 mm")))
sketch24.addConstraint(Sketcher.Constraint("Distance", 2, Q("15 mm")))
sketch24.addConstraint(Sketcher.Constraint("DistanceY", 1, 2, -1, 1, Q("100 mm")))
sketch24.addConstraint(Sketcher.Constraint("DistanceX", 1, 2, 0, 2, Q("30 mm")))
sketch24.addConstraint(Sketcher.Constraint("DistanceX", -1, 1, 0, 2, Q("181.5 mm")))
pad8 = body2.newObject("PartDesign::Pad", "Pad007")
pad8.Profile = sketch24
pad8.Length = 200
pad8.Reversed = True
body.AllowCompound = True
doc.recompute()

boolean = body.newObject("PartDesign::Boolean", "Boolean")
boolean.Type = "Fuse"
boolean.addObjects([body2])

sketch25 = body.newObject("Sketcher::SketchObject", "Sketch024")
sketch25.AttachmentSupport = (doc.getObject("YZ_Plane"), [""])
sketch25.MapMode = "FlatFace"
sketch25.AttachmentOffset = App.Placement(App.Vector(0, 0, 100), App.Rotation())
sketch25.addGeometry(Part.LineSegment(App.Vector(182, 0, 0), App.Vector(152, 100, 0)), False)
sketch25.addGeometry(Part.LineSegment(App.Vector(152, 100, 0), App.Vector(152, -100, 0)), False)
sketch25.addGeometry(Part.LineSegment(App.Vector(152, -100, 0), App.Vector(182, 0, 0)), False)
sketch25.addConstraint(Sketcher.Constraint("Coincident", 0, 2, 1, 1))
sketch25.addConstraint(Sketcher.Constraint("Coincident", 1, 2, 2, 1))
sketch25.addConstraint(Sketcher.Constraint("Coincident", 2, 2, 0, 1))
sketch25.addConstraint(Sketcher.Constraint("Vertical", 1))
sketch25.addConstraint(Sketcher.Constraint("PointOnObject", 2, 2, -1))
sketch25.addConstraint(Sketcher.Constraint("Equal", 0, 2))
sketch25.addConstraint(Sketcher.Constraint("DistanceY", 1, 2, 1, 1, Q("200 mm")))
sketch25.addConstraint(Sketcher.Constraint("DistanceX", 0, 2, 2, 2, Q("30 mm")))
sketch25.addConstraint(Sketcher.Constraint("DistanceX", -1, 1, 0, 2, Q("151.5 mm")))
pad9 = body.newObject("PartDesign::Pad", "Pad008")
pad9.Profile = sketch25
pad9.Length = 200
pad9.Reversed = True

doc.recompute()
